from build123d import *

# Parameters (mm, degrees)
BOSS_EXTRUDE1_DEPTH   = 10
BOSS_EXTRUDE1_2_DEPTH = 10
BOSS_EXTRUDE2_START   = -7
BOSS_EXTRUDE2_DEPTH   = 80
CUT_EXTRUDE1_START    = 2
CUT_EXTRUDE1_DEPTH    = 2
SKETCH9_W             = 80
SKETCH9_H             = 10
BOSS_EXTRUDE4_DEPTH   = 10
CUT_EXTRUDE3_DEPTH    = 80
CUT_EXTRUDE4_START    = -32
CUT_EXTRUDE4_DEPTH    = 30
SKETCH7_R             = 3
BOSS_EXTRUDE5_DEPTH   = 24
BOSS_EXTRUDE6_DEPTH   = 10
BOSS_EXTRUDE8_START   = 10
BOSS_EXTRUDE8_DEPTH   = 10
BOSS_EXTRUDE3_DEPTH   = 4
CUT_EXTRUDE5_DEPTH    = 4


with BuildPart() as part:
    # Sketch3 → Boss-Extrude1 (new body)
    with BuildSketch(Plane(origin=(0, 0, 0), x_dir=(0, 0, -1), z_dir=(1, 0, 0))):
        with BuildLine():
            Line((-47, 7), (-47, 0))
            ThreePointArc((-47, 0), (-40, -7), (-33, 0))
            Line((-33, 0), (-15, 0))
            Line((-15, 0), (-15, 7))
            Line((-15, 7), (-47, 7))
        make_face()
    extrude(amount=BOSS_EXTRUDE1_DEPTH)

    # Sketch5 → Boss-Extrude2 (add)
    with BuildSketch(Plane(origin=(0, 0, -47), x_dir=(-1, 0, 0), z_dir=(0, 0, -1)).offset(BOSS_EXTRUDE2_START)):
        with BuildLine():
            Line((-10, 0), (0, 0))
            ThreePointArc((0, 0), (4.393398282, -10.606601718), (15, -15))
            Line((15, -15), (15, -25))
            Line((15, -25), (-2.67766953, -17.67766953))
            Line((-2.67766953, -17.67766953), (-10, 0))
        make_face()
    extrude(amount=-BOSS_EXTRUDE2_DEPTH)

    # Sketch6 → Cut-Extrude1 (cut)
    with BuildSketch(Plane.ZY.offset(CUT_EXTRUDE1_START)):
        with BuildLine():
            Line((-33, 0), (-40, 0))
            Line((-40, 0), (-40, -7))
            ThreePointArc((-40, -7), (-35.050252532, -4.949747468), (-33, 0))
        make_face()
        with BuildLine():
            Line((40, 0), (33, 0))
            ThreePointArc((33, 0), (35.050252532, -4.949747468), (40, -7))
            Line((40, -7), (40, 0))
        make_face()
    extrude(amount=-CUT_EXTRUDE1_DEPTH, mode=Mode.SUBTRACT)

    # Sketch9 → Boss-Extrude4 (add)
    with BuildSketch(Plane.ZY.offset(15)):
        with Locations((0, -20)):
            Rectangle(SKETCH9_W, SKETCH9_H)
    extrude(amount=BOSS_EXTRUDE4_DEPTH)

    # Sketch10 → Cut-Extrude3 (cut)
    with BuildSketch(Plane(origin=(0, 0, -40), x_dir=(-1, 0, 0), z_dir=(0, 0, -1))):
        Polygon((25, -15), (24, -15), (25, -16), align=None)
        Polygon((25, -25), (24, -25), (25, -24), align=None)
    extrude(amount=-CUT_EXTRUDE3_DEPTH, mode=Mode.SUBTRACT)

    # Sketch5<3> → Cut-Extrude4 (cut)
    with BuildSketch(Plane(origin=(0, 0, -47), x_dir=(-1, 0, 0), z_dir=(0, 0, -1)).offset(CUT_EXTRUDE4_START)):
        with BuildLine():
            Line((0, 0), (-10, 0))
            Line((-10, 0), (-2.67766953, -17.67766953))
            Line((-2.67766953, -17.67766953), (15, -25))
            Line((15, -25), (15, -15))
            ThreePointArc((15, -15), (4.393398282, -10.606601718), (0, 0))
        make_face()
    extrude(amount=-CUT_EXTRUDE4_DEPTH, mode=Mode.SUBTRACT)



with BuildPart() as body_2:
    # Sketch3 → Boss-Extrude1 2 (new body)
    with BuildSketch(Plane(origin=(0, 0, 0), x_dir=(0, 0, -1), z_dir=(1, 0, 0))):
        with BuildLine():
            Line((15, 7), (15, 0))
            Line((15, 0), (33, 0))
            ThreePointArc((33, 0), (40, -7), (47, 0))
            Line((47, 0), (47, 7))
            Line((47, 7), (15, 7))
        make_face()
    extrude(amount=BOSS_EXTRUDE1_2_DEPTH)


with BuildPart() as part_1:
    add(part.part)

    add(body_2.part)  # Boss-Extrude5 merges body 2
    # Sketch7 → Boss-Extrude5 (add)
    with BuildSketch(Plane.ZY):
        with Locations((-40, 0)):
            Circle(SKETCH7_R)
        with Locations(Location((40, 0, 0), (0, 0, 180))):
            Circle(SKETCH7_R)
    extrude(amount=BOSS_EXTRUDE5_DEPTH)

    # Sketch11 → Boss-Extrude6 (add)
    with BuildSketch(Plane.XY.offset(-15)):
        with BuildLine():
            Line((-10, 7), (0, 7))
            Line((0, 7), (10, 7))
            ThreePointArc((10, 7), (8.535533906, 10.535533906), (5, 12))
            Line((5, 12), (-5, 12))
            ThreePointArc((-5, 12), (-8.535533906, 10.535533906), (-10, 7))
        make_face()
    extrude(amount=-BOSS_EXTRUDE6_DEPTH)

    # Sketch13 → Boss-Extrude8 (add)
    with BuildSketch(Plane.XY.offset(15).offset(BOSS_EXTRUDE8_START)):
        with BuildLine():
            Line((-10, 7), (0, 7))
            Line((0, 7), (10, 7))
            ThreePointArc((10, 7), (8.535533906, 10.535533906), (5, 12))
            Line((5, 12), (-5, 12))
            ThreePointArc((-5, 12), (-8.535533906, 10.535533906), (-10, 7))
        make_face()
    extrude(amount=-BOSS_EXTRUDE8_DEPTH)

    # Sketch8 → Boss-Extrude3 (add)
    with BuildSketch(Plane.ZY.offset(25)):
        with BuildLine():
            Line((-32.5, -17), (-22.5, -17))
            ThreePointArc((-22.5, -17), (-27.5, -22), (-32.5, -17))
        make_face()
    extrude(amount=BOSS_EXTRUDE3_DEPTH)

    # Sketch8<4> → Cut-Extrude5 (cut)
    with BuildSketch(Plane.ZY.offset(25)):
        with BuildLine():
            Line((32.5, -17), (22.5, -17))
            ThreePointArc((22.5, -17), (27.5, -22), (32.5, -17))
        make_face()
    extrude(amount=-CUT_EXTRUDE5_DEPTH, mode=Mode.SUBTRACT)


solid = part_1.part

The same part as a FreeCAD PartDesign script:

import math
import FreeCAD as App
import Part
import Sketcher

V = App.Vector
Q = App.Units.Quantity

doc = App.newDocument("Part")
body = doc.addObject("PartDesign::Body", "Body")

# Sketch on YZ plane
sketch1 = body.newObject("Sketcher::SketchObject", "Sketch")
sketch1.AttachmentSupport = (doc.getObject("YZ_Plane"), [""])
sketch1.MapMode = "FlatFace"
sketch1.addGeometry([
    Part.LineSegment(V(7, 47, 0), V(0, 47, 0)),  # 0
    Part.ArcOfCircle(Part.Circle(V(0, 40, 0), V(0, 0, 1), 7), math.radians(90), math.radians(270)),  # 1
    Part.LineSegment(V(0, 33, 0), V(0, 15, 0)),  # 2
    Part.LineSegment(V(0, 15, 0), V(7, 15, 0)),  # 3
    Part.LineSegment(V(7, 15, 0), V(7, 47, 0)),  # 4
], False)
sketch1.addConstraint([
    Sketcher.Constraint("Tangent", 0, 2, 1, 1),
    Sketcher.Constraint("Coincident", 1, 2, 2, 1),
    Sketcher.Constraint("Coincident", 2, 2, 3, 1),
    Sketcher.Constraint("Coincident", 3, 2, 4, 1),
    Sketcher.Constraint("Coincident", 4, 2, 0, 1),
    Sketcher.Constraint("Horizontal", 0),
    Sketcher.Constraint("Vertical", 2),
    Sketcher.Constraint("Horizontal", 3),
    Sketcher.Constraint("Vertical", 4),
    Sketcher.Constraint("PointOnObject", 1, 3, -2),
    Sketcher.Constraint("PointOnObject", 1, 2, -2),
    Sketcher.Constraint("Radius", 1, Q("7 mm")),
    Sketcher.Constraint("DistanceX", 0, 2, 0, 1, Q("7 mm")),
    Sketcher.Constraint("DistanceY", 2, 2, 2, 1, Q("18 mm")),
    Sketcher.Constraint("DistanceY", -1, 1, 1, 3, Q("40 mm")),
])
pad1 = body.newObject("PartDesign::Pad", "Pad")
pad1.Profile = sketch1
pad1.Length = 10

# Sketch on XY plane
sketch2 = body.newObject("Sketcher::SketchObject", "Sketch001")
sketch2.AttachmentSupport = (doc.getObject("XY_Plane"), [""])
sketch2.MapMode = "FlatFace"
sketch2.AttachmentOffset = App.Placement(V(0, 0, -40), App.Rotation())
sketch2.addGeometry([
    Part.LineSegment(V(0, 0, 0), V(10, 0, 0)),  # 0
    Part.LineSegment(V(10, 0, 0), V(3, -18, 0)),  # 1
    Part.LineSegment(V(3, -18, 0), V(-15, -25, 0)),  # 2
    Part.LineSegment(V(-15, -25, 0), V(-15, -15, 0)),  # 3
    Part.ArcOfCircle(Part.Circle(V(-15, 0, 0), V(0, 0, 1), 15), math.radians(-90), math.radians(0)),  # 4
], False)
sketch2.addConstraint([
    Sketcher.Constraint("Coincident", 0, 2, 1, 1),
    Sketcher.Constraint("Coincident", 1, 2, 2, 1),
    Sketcher.Constraint("Coincident", 2, 2, 3, 1),
    Sketcher.Constraint("Coincident", 3, 2, 4, 1),
    Sketcher.Constraint("Coincident", 4, 2, 0, 1),
    Sketcher.Constraint("Horizontal", 0),
    Sketcher.Constraint("Vertical", 3),
    Sketcher.Constraint("Coincident", 4, 2, -1, 1),
    Sketcher.Constraint("PointOnObject", 4, 3, -1),
    Sketcher.Constraint("Vertical", 4, 3, 2, 2),
    Sketcher.Constraint("Equal", 0, 3),
    Sketcher.Constraint("Equal", 1, 2),
    Sketcher.Constraint("Radius", 4, Q("15 mm")),
    Sketcher.Constraint("DistanceX", 0, 1, 0, 2, Q("10 mm")),
    Sketcher.Constraint("Angle", 1, Q("-112.5 deg")),
])
pad2 = body.newObject("PartDesign::Pad", "Pad001")
pad2.Profile = sketch2
pad2.Length = 80

# Sketch on YZ plane
sketch3 = body.newObject("Sketcher::SketchObject", "Sketch002")
sketch3.AttachmentSupport = (doc.getObject("YZ_Plane"), [""])
sketch3.MapMode = "FlatFace"
sketch3.AttachmentOffset = App.Placement(V(0, 0, -2), App.Rotation())
sketch3.addGeometry([
    Part.LineSegment(V(0, -33, 0), V(0, -40, 0)),  # 0
    Part.LineSegment(V(0, -40, 0), V(-7, -40, 0)),  # 1
    Part.ArcOfCircle(Part.Circle(V(0, -40, 0), V(0, 0, 1), 7), math.radians(90), math.radians(180)),  # 2
    Part.LineSegment(V(0, 40, 0), V(0, 33, 0)),  # 3
    Part.ArcOfCircle(Part.Circle(V(0, 40, 0), V(0, 0, 1), 7), math.radians(-180), math.radians(-90)),  # 4
    Part.LineSegment(V(-7, 40, 0), V(0, 40, 0)),  # 5
], False)
sketch3.addConstraint([
    Sketcher.Constraint("Coincident", 0, 2, 1, 1),
    Sketcher.Constraint("Coincident", 1, 2, 2, 2),
    Sketcher.Constraint("Coincident", 2, 1, 0, 1),
    Sketcher.Constraint("Coincident", 3, 2, 4, 2),
    Sketcher.Constraint("Coincident", 4, 1, 5, 1),
    Sketcher.Constraint("Coincident", 5, 2, 3, 1),
    Sketcher.Constraint("Vertical", 0),
    Sketcher.Constraint("Horizontal", 1),
    Sketcher.Constraint("Vertical", 3),
    Sketcher.Constraint("Horizontal", 5),
    Sketcher.Constraint("Coincident", 0, 2, 2, 3),
    Sketcher.Constraint("Coincident", 5, 2, 4, 3),
    Sketcher.Constraint("Equal", 2, 4),
    Sketcher.Constraint("Symmetric", 2, 3, 4, 3, -1, 1),
    Sketcher.Constraint("PointOnObject", 2, 3, -2),
    Sketcher.Constraint("Radius", 2, Q("7 mm")),
    Sketcher.Constraint("DistanceY", 2, 3, -1, 1, Q("40 mm")),
])
pocket1 = body.newObject("PartDesign::Pocket", "Pocket")
pocket1.Profile = sketch3
pocket1.Length = 2
pocket1.Reversed = True

# Sketch on YZ plane
sketch4 = body.newObject("Sketcher::SketchObject", "Sketch003")
sketch4.AttachmentSupport = (doc.getObject("YZ_Plane"), [""])
sketch4.MapMode = "FlatFace"
sketch4.AttachmentOffset = App.Placement(V(0, 0, -15), App.Rotation())
sketch4.addGeometry([
    Part.LineSegment(V(-15, -40, 0), V(-25, -40, 0)),
    Part.LineSegment(V(-25, -40, 0), V(-25, 40, 0)),
    Part.LineSegment(V(-25, 40, 0), V(-15, 40, 0)),
    Part.LineSegment(V(-15, 40, 0), V(-15, -40, 0)),
], False)
sketch4.addConstraint([
    Sketcher.Constraint("Coincident", 0, 2, 1, 1),
    Sketcher.Constraint("Coincident", 1, 2, 2, 1),
    Sketcher.Constraint("Coincident", 2, 2, 3, 1),
    Sketcher.Constraint("Coincident", 3, 2, 0, 1),
    Sketcher.Constraint("Horizontal", 0),
    Sketcher.Constraint("Vertical", 1),
    Sketcher.Constraint("Horizontal", 2),
    Sketcher.Constraint("Vertical", 3),
    Sketcher.Constraint("DistanceX", 0, 2, 0, 1, Q("10 mm")),
    Sketcher.Constraint("DistanceY", 1, 1, 1, 2, Q("80 mm")),
    Sketcher.Constraint("DistanceX", 0, 2, -1, 1, Q("25 mm")),
    Sketcher.Constraint("DistanceY", 0, 2, -1, 1, Q("40 mm")),
])
pad3 = body.newObject("PartDesign::Pad", "Pad002")
pad3.Profile = sketch4
pad3.Length = 10
pad3.Reversed = True

# Sketch on XY plane
sketch5 = body.newObject("Sketcher::SketchObject", "Sketch004")
sketch5.AttachmentSupport = (doc.getObject("XY_Plane"), [""])
sketch5.MapMode = "FlatFace"
sketch5.AttachmentOffset = App.Placement(V(0, 0, -40), App.Rotation())
sketch5.addGeometry([
    Part.LineSegment(V(-25, -15, 0), V(-24, -15, 0)),  # 0
    Part.LineSegment(V(-24, -15, 0), V(-25, -16, 0)),  # 1
    Part.LineSegment(V(-25, -16, 0), V(-25, -15, 0)),  # 2
    Part.LineSegment(V(-24, -25, 0), V(-25, -25, 0)),  # 3
    Part.LineSegment(V(-25, -25, 0), V(-25, -24, 0)),  # 4
    Part.LineSegment(V(-25, -24, 0), V(-24, -25, 0)),  # 5
], False)
sketch5.addConstraint([
    Sketcher.Constraint("Coincident", 0, 2, 1, 1),
    Sketcher.Constraint("Coincident", 1, 2, 2, 1),
    Sketcher.Constraint("Coincident", 2, 2, 0, 1),
    Sketcher.Constraint("Coincident", 3, 2, 4, 1),
    Sketcher.Constraint("Coincident", 4, 2, 5, 1),
    Sketcher.Constraint("Coincident", 5, 2, 3, 1),
    Sketcher.Constraint("Horizontal", 0),
    Sketcher.Constraint("Vertical", 2),
    Sketcher.Constraint("Horizontal", 3),
    Sketcher.Constraint("Vertical", 4),
    Sketcher.Constraint("Perpendicular", 1, 5),
    Sketcher.Constraint("Vertical", 2, 2, 3, 2),
    Sketcher.Constraint("Vertical", 0, 2, 5, 2),
    Sketcher.Constraint("Equal", 3, 2),
    Sketcher.Constraint("DistanceX", 0, 1, 0, 2, Q("1 mm")),
    Sketcher.Constraint("DistanceX", 0, 2, -1, 1, Q("24 mm")),
    Sketcher.Constraint("DistanceY", 0, 2, -1, 1, Q("15 mm")),
    Sketcher.Constraint("DistanceY", 3, 2, -1, 1, Q("25 mm")),
])
pocket2 = body.newObject("PartDesign::Pocket", "Pocket001")
pocket2.Profile = sketch5
pocket2.Length = 80
pocket2.Reversed = True

# Sketch on XY plane
sketch6 = body.newObject("Sketcher::SketchObject", "Sketch005")
sketch6.AttachmentSupport = (doc.getObject("XY_Plane"), [""])
sketch6.MapMode = "FlatFace"
sketch6.AttachmentOffset = App.Placement(V(0, 0, -15), App.Rotation())
sketch6.addGeometry([
    Part.LineSegment(V(0, 0, 0), V(10, 0, 0)),  # 0
    Part.LineSegment(V(10, 0, 0), V(3, -18, 0)),  # 1
    Part.LineSegment(V(3, -18, 0), V(-15, -25, 0)),  # 2
    Part.LineSegment(V(-15, -25, 0), V(-15, -15, 0)),  # 3
    Part.ArcOfCircle(Part.Circle(V(-15, 0, 0), V(0, 0, 1), 15), math.radians(-90), math.radians(0)),  # 4
], False)
sketch6.addConstraint([
    Sketcher.Constraint("Coincident", 0, 2, 1, 1),
    Sketcher.Constraint("Coincident", 1, 2, 2, 1),
    Sketcher.Constraint("Coincident", 2, 2, 3, 1),
    Sketcher.Constraint("Coincident", 3, 2, 4, 1),
    Sketcher.Constraint("Coincident", 4, 2, 0, 1),
    Sketcher.Constraint("Horizontal", 0),
    Sketcher.Constraint("Vertical", 3),
    Sketcher.Constraint("Coincident", 4, 2, -1, 1),
    Sketcher.Constraint("PointOnObject", 4, 3, -1),
    Sketcher.Constraint("Vertical", 4, 3, 2, 2),
    Sketcher.Constraint("Equal", 0, 3),
    Sketcher.Constraint("Equal", 1, 2),
    Sketcher.Constraint("Radius", 4, Q("15 mm")),
    Sketcher.Constraint("DistanceX", 0, 1, 0, 2, Q("10 mm")),
    Sketcher.Constraint("Angle", 1, Q("-112.5 deg")),
])
pocket3 = body.newObject("PartDesign::Pocket", "Pocket002")
pocket3.Profile = sketch6
pocket3.Length = 30
pocket3.Reversed = True
body2 = doc.addObject("PartDesign::Body", "Body001")

# Sketch on YZ plane
sketch7 = body2.newObject("Sketcher::SketchObject", "Sketch006")
sketch7.AttachmentSupport = (doc.getObject("YZ_Plane001"), [""])
sketch7.MapMode = "FlatFace"
sketch7.addGeometry([
    Part.LineSegment(V(7, -15, 0), V(0, -15, 0)),  # 0
    Part.LineSegment(V(0, -15, 0), V(0, -33, 0)),  # 1
    Part.ArcOfCircle(Part.Circle(V(0, -40, 0), V(0, 0, 1), 7), math.radians(90), math.radians(270)),  # 2
    Part.LineSegment(V(0, -47, 0), V(7, -47, 0)),  # 3
    Part.LineSegment(V(7, -47, 0), V(7, -15, 0)),  # 4
], False)
sketch7.addConstraint([
    Sketcher.Constraint("Coincident", 0, 2, 1, 1),
    Sketcher.Constraint("Coincident", 1, 2, 2, 1),
    Sketcher.Constraint("Tangent", 2, 2, 3, 1),
    Sketcher.Constraint("Coincident", 3, 2, 4, 1),
    Sketcher.Constraint("Coincident", 4, 2, 0, 1),
    Sketcher.Constraint("Horizontal", 0),
    Sketcher.Constraint("Vertical", 1),
    Sketcher.Constraint("Horizontal", 3),
    Sketcher.Constraint("Vertical", 4),
    Sketcher.Constraint("PointOnObject", 2, 3, -2),
    Sketcher.Constraint("PointOnObject", 0, 2, -2),
    Sketcher.Constraint("Radius", 2, Q("7 mm")),
    Sketcher.Constraint("DistanceX", 0, 2, 0, 1, Q("7 mm")),
    Sketcher.Constraint("DistanceY", 1, 2, 1, 1, Q("18 mm")),
    Sketcher.Constraint("DistanceY", 2, 3, -1, 1, Q("40 mm")),
])
pad4 = body2.newObject("PartDesign::Pad", "Pad003")
pad4.Profile = sketch7
pad4.Length = 10
doc.recompute()

boolean = body.newObject("PartDesign::Boolean", "Boolean")
boolean.Type = "Fuse"
boolean.addObjects([body2])

# Sketch on YZ plane
sketch8 = body.newObject("Sketcher::SketchObject", "Sketch007")
sketch8.AttachmentSupport = (doc.getObject("YZ_Plane"), [""])
sketch8.MapMode = "FlatFace"
sketch8.addGeometry([
    Part.Circle(V(0, -40, 0), V(0, 0, 1), 3),
    Part.Circle(V(0, 40, 0), V(0, 0, 1), 3),
], False)
sketch8.addConstraint([
    Sketcher.Constraint("Equal", 0, 1),
    Sketcher.Constraint("Symmetric", 0, 3, 1, 3, -1, 1),
    Sketcher.Constraint("PointOnObject", 0, 3, -2),
    Sketcher.Constraint("Diameter", 0, Q("6 mm")),
    Sketcher.Constraint("DistanceY", 0, 3, -1, 1, Q("40 mm")),
])
pad5 = body.newObject("PartDesign::Pad", "Pad004")
pad5.Profile = sketch8
pad5.Length = 24
pad5.Reversed = True

# Sketch on XY plane
sketch9 = body.newObject("Sketcher::SketchObject", "Sketch008")
sketch9.AttachmentSupport = (doc.getObject("XY_Plane"), [""])
sketch9.MapMode = "FlatFace"
sketch9.AttachmentOffset = App.Placement(V(0, 0, -15), App.Rotation())
sketch9.addGeometry([
    Part.LineSegment(V(-10, 7, 0), V(10, 7, 0)),
    Part.ArcOfCircle(Part.Circle(V(5, 7, 0), V(0, 0, 1), 5), math.radians(0), math.radians(90)),
    Part.LineSegment(V(5, 12, 0), V(-5, 12, 0)),
    Part.ArcOfCircle(Part.Circle(V(-5, 7, 0), V(0, 0, 1), 5), math.radians(90), math.radians(180)),
], False)
sketch9.addConstraint([
    Sketcher.Constraint("Coincident", 0, 2, 1, 1),
    Sketcher.Constraint("Tangent", 1, 2, 2, 1),
    Sketcher.Constraint("Tangent", 2, 2, 3, 1),
    Sketcher.Constraint("Coincident", 3, 2, 0, 1),
    Sketcher.Constraint("Horizontal", 0),
    Sketcher.Constraint("Horizontal", 2),
    Sketcher.Constraint("Equal", 1, 3),
    Sketcher.Constraint("Horizontal", 3, 3, 0, 2),
    Sketcher.Constraint("Radius", 1, Q("5 mm")),
    Sketcher.Constraint("DistanceX", 0, 1, 0, 2, Q("20 mm")),
    Sketcher.Constraint("DistanceX", -1, 1, 1, 3, Q("5 mm")),
    Sketcher.Constraint("DistanceY", -1, 1, 1, 3, Q("7 mm")),
])
pad6 = body.newObject("PartDesign::Pad", "Pad005")
pad6.Profile = sketch9
pad6.Length = 10
pad6.Reversed = True

# Sketch on XY plane
sketch10 = body.newObject("Sketcher::SketchObject", "Sketch009")
sketch10.AttachmentSupport = (doc.getObject("XY_Plane"), [""])
sketch10.MapMode = "FlatFace"
sketch10.AttachmentOffset = App.Placement(V(0, 0, 25), App.Rotation())
sketch10.addGeometry([
    Part.LineSegment(V(-10, 7, 0), V(10, 7, 0)),
    Part.ArcOfCircle(Part.Circle(V(5, 7, 0), V(0, 0, 1), 5), math.radians(0), math.radians(90)),
    Part.LineSegment(V(5, 12, 0), V(-5, 12, 0)),
    Part.ArcOfCircle(Part.Circle(V(-5, 7, 0), V(0, 0, 1), 5), math.radians(90), math.radians(180)),
], False)
sketch10.addConstraint([
    Sketcher.Constraint("Coincident", 0, 2, 1, 1),
    Sketcher.Constraint("Tangent", 1, 2, 2, 1),
    Sketcher.Constraint("Tangent", 2, 2, 3, 1),
    Sketcher.Constraint("Coincident", 3, 2, 0, 1),
    Sketcher.Constraint("Horizontal", 0),
    Sketcher.Constraint("Horizontal", 2),
    Sketcher.Constraint("Equal", 1, 3),
    Sketcher.Constraint("Horizontal", 3, 3, 0, 2),
    Sketcher.Constraint("Radius", 1, Q("5 mm")),
    Sketcher.Constraint("DistanceX", 0, 1, 0, 2, Q("20 mm")),
    Sketcher.Constraint("DistanceX", -1, 1, 1, 3, Q("5 mm")),
    Sketcher.Constraint("DistanceY", -1, 1, 1, 3, Q("7 mm")),
])
pad7 = body.newObject("PartDesign::Pad", "Pad006")
pad7.Profile = sketch10
pad7.Length = 10
pad7.Reversed = True

# Sketch on YZ plane
sketch11 = body.newObject("Sketcher::SketchObject", "Sketch010")
sketch11.AttachmentSupport = (doc.getObject("YZ_Plane"), [""])
sketch11.MapMode = "FlatFace"
sketch11.AttachmentOffset = App.Placement(V(0, 0, -25), App.Rotation())
sketch11.addGeometry([
    Part.LineSegment(V(-17, -22, 0), V(-17, -32, 0)),
    Part.ArcOfCircle(Part.Circle(V(-17, -28, 0), V(0, 0, 1), 5), math.radians(90), math.radians(270)),
], False)
sketch11.addConstraint([
    Sketcher.Constraint("Coincident", 0, 1, 1, 1),
    Sketcher.Constraint("Coincident", 1, 2, 0, 2),
    Sketcher.Constraint("Vertical", 0),
    Sketcher.Constraint("Vertical", 1, 3, 0, 1),
    Sketcher.Constraint("Radius", 1, Q("5 mm")),
    Sketcher.Constraint("DistanceX", 1, 3, -1, 1, Q("17 mm")),
    Sketcher.Constraint("DistanceY", 1, 3, -1, 1, Q("27.5 mm")),
])
pad8 = body.newObject("PartDesign::Pad", "Pad007")
pad8.Profile = sketch11
pad8.Length = 4
pad8.Reversed = True

# Sketch on YZ plane
sketch12 = body.newObject("Sketcher::SketchObject", "Sketch011")
sketch12.AttachmentSupport = (doc.getObject("YZ_Plane"), [""])
sketch12.MapMode = "FlatFace"
sketch12.AttachmentOffset = App.Placement(V(0, 0, -25), App.Rotation())
sketch12.addGeometry([
    Part.LineSegment(V(-17, 32, 0), V(-17, 22, 0)),
    Part.ArcOfCircle(Part.Circle(V(-17, 28, 0), V(0, 0, 1), 5), math.radians(90), math.radians(270)),
], False)
sketch12.addConstraint([
    Sketcher.Constraint("Coincident", 0, 1, 1, 1),
    Sketcher.Constraint("Coincident", 1, 2, 0, 2),
    Sketcher.Constraint("Vertical", 0),
    Sketcher.Constraint("Vertical", 1, 3, 0, 1),
    Sketcher.Constraint("Radius", 1, Q("5 mm")),
    Sketcher.Constraint("DistanceX", 1, 3, -1, 1, Q("17 mm")),
    Sketcher.Constraint("DistanceY", -1, 1, 1, 3, Q("27.5 mm")),
])
pocket4 = body.newObject("PartDesign::Pocket", "Pocket003")
pocket4.Profile = sketch12
pocket4.Length = 4
pocket4.Reversed = True

doc.recompute()
